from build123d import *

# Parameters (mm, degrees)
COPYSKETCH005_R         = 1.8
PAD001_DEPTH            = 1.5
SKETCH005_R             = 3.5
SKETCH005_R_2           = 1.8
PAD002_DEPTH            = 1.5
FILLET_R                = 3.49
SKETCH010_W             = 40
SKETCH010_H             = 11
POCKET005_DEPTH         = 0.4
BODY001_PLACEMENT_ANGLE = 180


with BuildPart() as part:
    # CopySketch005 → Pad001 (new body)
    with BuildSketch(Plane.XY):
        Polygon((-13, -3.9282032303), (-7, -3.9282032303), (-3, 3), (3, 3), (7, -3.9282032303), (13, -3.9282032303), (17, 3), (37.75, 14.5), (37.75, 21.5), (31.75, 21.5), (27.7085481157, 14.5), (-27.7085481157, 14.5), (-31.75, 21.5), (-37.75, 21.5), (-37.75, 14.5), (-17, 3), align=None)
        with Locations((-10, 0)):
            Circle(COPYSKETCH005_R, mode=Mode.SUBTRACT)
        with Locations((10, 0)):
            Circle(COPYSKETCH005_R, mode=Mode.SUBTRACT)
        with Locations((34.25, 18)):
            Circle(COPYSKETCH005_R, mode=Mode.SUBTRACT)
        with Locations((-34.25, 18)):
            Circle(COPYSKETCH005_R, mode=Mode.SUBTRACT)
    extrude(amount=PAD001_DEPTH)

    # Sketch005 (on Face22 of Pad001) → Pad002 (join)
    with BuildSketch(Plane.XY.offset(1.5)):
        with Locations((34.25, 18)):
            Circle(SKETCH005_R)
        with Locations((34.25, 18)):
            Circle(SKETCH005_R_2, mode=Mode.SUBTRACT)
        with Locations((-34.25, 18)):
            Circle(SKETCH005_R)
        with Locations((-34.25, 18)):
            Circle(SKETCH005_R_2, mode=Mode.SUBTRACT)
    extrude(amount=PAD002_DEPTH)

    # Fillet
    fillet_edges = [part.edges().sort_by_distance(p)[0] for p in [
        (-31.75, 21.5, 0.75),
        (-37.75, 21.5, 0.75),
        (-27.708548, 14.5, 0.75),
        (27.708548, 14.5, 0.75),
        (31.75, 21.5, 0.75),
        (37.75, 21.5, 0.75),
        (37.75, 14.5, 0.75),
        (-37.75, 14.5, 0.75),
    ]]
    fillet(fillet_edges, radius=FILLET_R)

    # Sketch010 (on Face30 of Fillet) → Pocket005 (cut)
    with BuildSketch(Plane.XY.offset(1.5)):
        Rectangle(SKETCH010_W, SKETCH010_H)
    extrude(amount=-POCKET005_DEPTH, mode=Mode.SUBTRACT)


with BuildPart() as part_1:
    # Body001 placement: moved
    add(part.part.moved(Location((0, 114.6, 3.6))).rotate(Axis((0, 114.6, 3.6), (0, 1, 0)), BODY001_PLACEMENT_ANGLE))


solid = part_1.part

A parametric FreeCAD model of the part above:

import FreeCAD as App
import Part
import Sketcher
from FreeCAD import Vector
Q = App.Units.Quantity


def edges_at(feature, points):
    """Names of the edges that pass closest to the given points."""
    edges = feature.Shape.Edges
    near = lambda p: min(range(len(edges)), key=lambda i: edges[i].distToShape(Part.Vertex(*p))[0])
    return sorted({f"Edge{near(p) + 1}" for p in points})

doc = App.newDocument("Part")
params = doc.addObject("Spreadsheet::Sheet", "Params")
for row, (alias, value) in enumerate([
    ("sketch1_diameter", "3.6 mm"),
    ("sketch1_width", "6 mm"),
    ("sketch1_height", "7 mm"),
    ("sketch1_length", "8 mm"),
    ("pad1_length", "1.5 mm"),
    ("sketch2_diameter", "7 mm"),
    ("sketch2_diameter2", "3.6 mm"),
    ("pad2_length", "1.5 mm"),
    ("fillet_radius", "3.49 mm"),
    ("sketch3_width", "40 mm"),
    ("sketch3_height", "11 mm"),
    ("pocket1_length", "0.4 mm"),
], start=1):
    params.set(f"A{row}", alias)
    params.set(f"B{row}", "=" + value)
    params.setAlias(f"B{row}", alias)

body = doc.addObject("PartDesign::Body", "Body")

# Sketch on XY plane
sketch1 = doc.addObject("Sketcher::SketchObject", "Sketch")
body.addObject(sketch1)
sketch1.AttachmentSupport = (doc.XY_Plane, [""])
sketch1.MapMode = "FlatFace"
sketch1.addGeometry(Part.LineSegment(Vector(-13, -3.9, 0), Vector(-7, -3.9, 0)), False)
sketch1.addGeometry(Part.LineSegment(Vector(-7, -3.9, 0), Vector(-3, 3, 0)), False)
sketch1.addGeometry(Part.LineSegment(Vector(-3, 3, 0), Vector(3, 3, 0)), False)
sketch1.addGeometry(Part.LineSegment(Vector(3, 3, 0), Vector(7, -3.9, 0)), False)
sketch1.addGeometry(Part.LineSegment(Vector(7, -3.9, 0), Vector(13, -3.9, 0)), False)
sketch1.addGeometry(Part.LineSegment(Vector(13, -3.9, 0), Vector(17, 3, 0)), False)
sketch1.addGeometry(Part.LineSegment(Vector(17, 3, 0), Vector(37.8, 14.5, 0)), False)
sketch1.addGeometry(Part.LineSegment(Vector(37.8, 14.5, 0), Vector(37.8, 21.5, 0)), False)
sketch1.addGeometry(Part.LineSegment(Vector(37.8, 21.5, 0), Vector(31.8, 21.5, 0)), False)
sketch1.addGeometry(Part.LineSegment(Vector(31.8, 21.5, 0), Vector(27.7, 14.5, 0)), False)
sketch1.addGeometry(Part.LineSegment(Vector(27.7, 14.5, 0), Vector(-27.7, 14.5, 0)), False)
sketch1.addGeometry(Part.LineSegment(Vector(-27.7, 14.5, 0), Vector(-31.8, 21.5, 0)), False)
sketch1.addGeometry(Part.LineSegment(Vector(-31.8, 21.5, 0), Vector(-37.8, 21.5, 0)), False)
sketch1.addGeometry(Part.LineSegment(Vector(-37.8, 21.5, 0), Vector(-37.8, 14.5, 0)), False)
sketch1.addGeometry(Part.LineSegment(Vector(-37.8, 14.5, 0), Vector(-17, 3, 0)), False)
sketch1.addGeometry(Part.LineSegment(Vector(-17, 3, 0), Vector(-13, -3.9, 0)), False)
sketch1.addGeometry(Part.Circle(Vector(-10, 0, 0), Vector(0, 0, 1), 1.8), False)
sketch1.addGeometry(Part.Circle(Vector(10, 0, 0), Vector(0, 0, 1), 1.8), False)
sketch1.addGeometry(Part.Circle(Vector(-34.2, 18, 0), Vector(0, 0, 1), 1.8), False)
sketch1.addGeometry(Part.Circle(Vector(34.2, 18, 0), Vector(0, 0, 1), 1.8), False)
sketch1.addConstraint(Sketcher.Constraint("Coincident", 0, 2, 1, 1))
sketch1.addConstraint(Sketcher.Constraint("Coincident", 1, 2, 2, 1))
sketch1.addConstraint(Sketcher.Constraint("Coincident", 2, 2, 3, 1))
sketch1.addConstraint(Sketcher.Constraint("Coincident", 3, 2, 4, 1))
sketch1.addConstraint(Sketcher.Constraint("Coincident", 4, 2, 5, 1))
sketch1.addConstraint(Sketcher.Constraint("Coincident", 5, 2, 6, 1))
sketch1.addConstraint(Sketcher.Constraint("Coincident", 6, 2, 7, 1))
sketch1.addConstraint(Sketcher.Constraint("Coincident", 7, 2, 8, 1))
sketch1.addConstraint(Sketcher.Constraint("Coincident", 8, 2, 9, 1))
sketch1.addConstraint(Sketcher.Constraint("Coincident", 9, 2, 10, 1))
sketch1.addConstraint(Sketcher.Constraint("Coincident", 10, 2, 11, 1))
sketch1.addConstraint(Sketcher.Constraint("Coincident", 11, 2, 12, 1))
sketch1.addConstraint(Sketcher.Constraint("Coincident", 12, 2, 13, 1))
sketch1.addConstraint(Sketcher.Constraint("Coincident", 13, 2, 14, 1))
sketch1.addConstraint(Sketcher.Constraint("Coincident", 14, 2, 15, 1))
sketch1.addConstraint(Sketcher.Constraint("Coincident", 15, 2, 0, 1))
sketch1.addConstraint(Sketcher.Constraint("Horizontal", 0))
sketch1.addConstraint(Sketcher.Constraint("Horizontal", 2))
sketch1.addConstraint(Sketcher.Constraint("Horizontal", 4))
sketch1.addConstraint(Sketcher.Constraint("Vertical", 7))
sketch1.addConstraint(Sketcher.Constraint("Horizontal", 8))
sketch1.addConstraint(Sketcher.Constraint("Horizontal", 10))
sketch1.addConstraint(Sketcher.Constraint("Horizontal", 12))
sketch1.addConstraint(Sketcher.Constraint("Vertical", 13))
sketch1.addConstraint(Sketcher.Constraint("Equal", 16, 17))
sketch1.addConstraint(Sketcher.Constraint("Equal", 17, 18))
sketch1.addConstraint(Sketcher.Constraint("Equal", 18, 19))
sketch1.addConstraint(Sketcher.Constraint("Symmetric", 16, 3, 17, 3, -1, 1))
sketch1.addConstraint(Sketcher.Constraint("Symmetric", 18, 3, 19, 3, -2))
sketch1.addConstraint(Sketcher.Constraint("Symmetric", 0, 2, 3, 2, -2))
sketch1.addConstraint(Sketcher.Constraint("Symmetric", 8, 2, 11, 2, -2))
sketch1.addConstraint(Sketcher.Constraint("Symmetric", 6, 2, 13, 2, -2))
sketch1.addConstraint(Sketcher.Constraint("Symmetric", 5, 2, 14, 2, -2))
sketch1.addConstraint(Sketcher.Constraint("PointOnObject", 16, 3, -1))
sketch1.addConstraint(Sketcher.Constraint("Parallel", 1, 5))
sketch1.addConstraint(Sketcher.Constraint("Parallel", 5, 9))
sketch1.addConstraint(Sketcher.Constraint("Parallel", 3, 11))
sketch1.addConstraint(Sketcher.Constraint("Parallel", 11, 15))
sketch1.addConstraint(Sketcher.Constraint("Horizontal", 2, 2, 5, 2))
sketch1.addConstraint(Sketcher.Constraint("Horizontal", 6, 2, 9, 2))
sketch1.addConstraint(Sketcher.Constraint("Equal", 0, 2))
sketch1.addConstraint(Sketcher.Constraint("Equal", 2, 4))
sketch1.addConstraint(Sketcher.Constraint("Equal", 4, 8))
sketch1.addConstraint(Sketcher.Constraint("Diameter", 16, Q("3.6 mm")))
sketch1.addConstraint(Sketcher.Constraint("DistanceX", 0, 1, 0, 2, Q("6 mm")))
sketch1.addConstraint(Sketcher.Constraint("DistanceY", 7, 1, 7, 2, Q("7 mm")))
sketch1.addConstraint(Sketcher.Constraint("Angle", 1, Q("60 deg")))
sketch1.addConstraint(Sketcher.Constraint("Distance", 1, Q("8 mm")))
sketch1.addConstraint(Sketcher.Constraint("DistanceX", 16, 3, -1, 1, Q("10 mm")))
sketch1.addConstraint(Sketcher.Constraint("DistanceY", -1, 1, 18, 3, Q("18 mm")))
sketch1.addConstraint(Sketcher.Constraint("DistanceY", -1, 1, 1, 2, Q("3 mm")))
sketch1.addConstraint(Sketcher.Constraint("DistanceY", -1, 1, 6, 2, Q("14.5 mm")))
sketch1.addConstraint(Sketcher.Constraint("DistanceX", 18, 3, 19, 3, Q("68.5 mm")))
sketch1.addConstraint(Sketcher.Constraint("DistanceX", 19, 3, 6, 2, Q("3.5 mm")))
sketch1.setExpression("Constraints[43]", "Params.sketch1_diameter")
sketch1.setExpression("Constraints[44]", "Params.sketch1_width")
sketch1.setExpression("Constraints[45]", "Params.sketch1_height")
sketch1.setExpression("Constraints[47]", "Params.sketch1_length")
pad1 = doc.addObject("PartDesign::Pad", "Pad")
body.addObject(pad1)
pad1.Profile = sketch1
pad1.setExpression("Length", "Params.pad1_length")

# Sketch on XY plane
sketch2 = doc.addObject("Sketcher::SketchObject", "Sketch001")
body.addObject(sketch2)
sketch2.AttachmentSupport = (doc.XY_Plane, [""])
sketch2.MapMode = "FlatFace"
sketch2.AttachmentOffset = App.Placement(Vector(0, 0, 1.5), App.Rotation())
sketch2.addGeometry(Part.Circle(Vector(34.2, 18, 0), Vector(0, 0, 1), 3.5), False)
sketch2.addGeometry(Part.Circle(Vector(34.2, 18, 0), Vector(0, 0, 1), 1.8), False)
sketch2.addGeometry(Part.Circle(Vector(-34.2, 18, 0), Vector(0, 0, 1), 3.5), False)
sketch2.addGeometry(Part.Circle(Vector(-34.2, 18, 0), Vector(0, 0, 1), 1.8), False)
sketch2.addConstraint(Sketcher.Constraint("Coincident", 1, 3, 0, 3))
sketch2.addConstraint(Sketcher.Constraint("Coincident", 3, 3, 2, 3))
sketch2.addConstraint(Sketcher.Constraint("Equal", 0, 2))
sketch2.addConstraint(Sketcher.Constraint("Equal", 1, 3))
sketch2.addConstraint(Sketcher.Constraint("Symmetric", 0, 3, 2, 3, -2))
sketch2.addConstraint(Sketcher.Constraint("Diameter", 0, Q("7 mm")))
sketch2.addConstraint(Sketcher.Constraint("Diameter", 1, Q("3.6 mm")))
sketch2.addConstraint(Sketcher.Constraint("DistanceY", -1, 1, 0, 3, Q("18 mm")))
sketch2.addConstraint(Sketcher.Constraint("DistanceX", 2, 3, 0, 3, Q("68.5 mm")))
sketch2.setExpression("Constraints[5]", "Params.sketch2_diameter")
sketch2.setExpression("Constraints[6]", "Params.sketch2_diameter2")
pad2 = doc.addObject("PartDesign::Pad", "Pad001")
body.addObject(pad2)
pad2.Profile = sketch2
pad2.setExpression("Length", "Params.pad2_length")
doc.recompute()

fillet = doc.addObject("PartDesign::Fillet", "Fillet")
body.addObject(fillet)
fillet.Base = (pad2, edges_at(pad2, [
    (-31.75, 21.5, 0.75),
    (-37.75, 21.5, 0.75),
    (-27.709, 14.5, 0.75),
    (27.709, 14.5, 0.75),
    (31.75, 21.5, 0.75),
    (37.75, 21.5, 0.75),
    (37.75, 14.5, 0.75),
    (-37.75, 14.5, 0.75),
]))
fillet.setExpression("Radius", "Params.fillet_radius")

# Sketch on XY plane
sketch3 = doc.addObject("Sketcher::SketchObject", "Sketch002")
body.addObject(sketch3)
sketch3.AttachmentSupport = (doc.XY_Plane, [""])
sketch3.MapMode = "FlatFace"
sketch3.AttachmentOffset = App.Placement(Vector(0, 0, 1.5), App.Rotation())
sketch3.addGeometry(Part.LineSegment(Vector(-20, 6, 0), Vector(-20, -6, 0)), False)
sketch3.addGeometry(Part.LineSegment(Vector(-20, -6, 0), Vector(20, -6, 0)), False)
sketch3.addGeometry(Part.LineSegment(Vector(20, -6, 0), Vector(20, 6, 0)), False)
sketch3.addGeometry(Part.LineSegment(Vector(20, 6, 0), Vector(-20, 6, 0)), False)
sketch3.addConstraint(Sketcher.Constraint("Coincident", 0, 2, 1, 1))
sketch3.addConstraint(Sketcher.Constraint("Coincident", 1, 2, 2, 1))
sketch3.addConstraint(Sketcher.Constraint("Coincident", 2, 2, 3, 1))
sketch3.addConstraint(Sketcher.Constraint("Coincident", 3, 2, 0, 1))
sketch3.addConstraint(Sketcher.Constraint("Vertical", 0))
sketch3.addConstraint(Sketcher.Constraint("Horizontal", 1))
sketch3.addConstraint(Sketcher.Constraint("Vertical", 2))
sketch3.addConstraint(Sketcher.Constraint("Horizontal", 3))
sketch3.addConstraint(Sketcher.Constraint("Symmetric", 0, 2, 2, 2, -1, 1))
sketch3.addConstraint(Sketcher.Constraint("DistanceX", 1, 1, 1, 2, Q("40 mm")))
sketch3.addConstraint(Sketcher.Constraint("DistanceY", 0, 2, 0, 1, Q("11 mm")))
sketch3.setExpression("Constraints[9]", "Params.sketch3_width")
sketch3.setExpression("Constraints[10]", "Params.sketch3_height")
pocket1 = doc.addObject("PartDesign::Pocket", "Pocket")
body.addObject(pocket1)
pocket1.Profile = sketch3
pocket1.setExpression("Length", "Params.pocket1_length")
body2 = doc.addObject("PartDesign::Body", "Body001")
doc.recompute()

body.Placement = App.Placement(Vector(0, 114.6, 3.6), App.Rotation(Vector(0, 1, 0), 180))
boolean = doc.addObject("PartDesign::Boolean", "Boolean")
body2.addObject(boolean)
boolean.Type = "Fuse"
boolean.addObjects([body])

doc.recompute()
